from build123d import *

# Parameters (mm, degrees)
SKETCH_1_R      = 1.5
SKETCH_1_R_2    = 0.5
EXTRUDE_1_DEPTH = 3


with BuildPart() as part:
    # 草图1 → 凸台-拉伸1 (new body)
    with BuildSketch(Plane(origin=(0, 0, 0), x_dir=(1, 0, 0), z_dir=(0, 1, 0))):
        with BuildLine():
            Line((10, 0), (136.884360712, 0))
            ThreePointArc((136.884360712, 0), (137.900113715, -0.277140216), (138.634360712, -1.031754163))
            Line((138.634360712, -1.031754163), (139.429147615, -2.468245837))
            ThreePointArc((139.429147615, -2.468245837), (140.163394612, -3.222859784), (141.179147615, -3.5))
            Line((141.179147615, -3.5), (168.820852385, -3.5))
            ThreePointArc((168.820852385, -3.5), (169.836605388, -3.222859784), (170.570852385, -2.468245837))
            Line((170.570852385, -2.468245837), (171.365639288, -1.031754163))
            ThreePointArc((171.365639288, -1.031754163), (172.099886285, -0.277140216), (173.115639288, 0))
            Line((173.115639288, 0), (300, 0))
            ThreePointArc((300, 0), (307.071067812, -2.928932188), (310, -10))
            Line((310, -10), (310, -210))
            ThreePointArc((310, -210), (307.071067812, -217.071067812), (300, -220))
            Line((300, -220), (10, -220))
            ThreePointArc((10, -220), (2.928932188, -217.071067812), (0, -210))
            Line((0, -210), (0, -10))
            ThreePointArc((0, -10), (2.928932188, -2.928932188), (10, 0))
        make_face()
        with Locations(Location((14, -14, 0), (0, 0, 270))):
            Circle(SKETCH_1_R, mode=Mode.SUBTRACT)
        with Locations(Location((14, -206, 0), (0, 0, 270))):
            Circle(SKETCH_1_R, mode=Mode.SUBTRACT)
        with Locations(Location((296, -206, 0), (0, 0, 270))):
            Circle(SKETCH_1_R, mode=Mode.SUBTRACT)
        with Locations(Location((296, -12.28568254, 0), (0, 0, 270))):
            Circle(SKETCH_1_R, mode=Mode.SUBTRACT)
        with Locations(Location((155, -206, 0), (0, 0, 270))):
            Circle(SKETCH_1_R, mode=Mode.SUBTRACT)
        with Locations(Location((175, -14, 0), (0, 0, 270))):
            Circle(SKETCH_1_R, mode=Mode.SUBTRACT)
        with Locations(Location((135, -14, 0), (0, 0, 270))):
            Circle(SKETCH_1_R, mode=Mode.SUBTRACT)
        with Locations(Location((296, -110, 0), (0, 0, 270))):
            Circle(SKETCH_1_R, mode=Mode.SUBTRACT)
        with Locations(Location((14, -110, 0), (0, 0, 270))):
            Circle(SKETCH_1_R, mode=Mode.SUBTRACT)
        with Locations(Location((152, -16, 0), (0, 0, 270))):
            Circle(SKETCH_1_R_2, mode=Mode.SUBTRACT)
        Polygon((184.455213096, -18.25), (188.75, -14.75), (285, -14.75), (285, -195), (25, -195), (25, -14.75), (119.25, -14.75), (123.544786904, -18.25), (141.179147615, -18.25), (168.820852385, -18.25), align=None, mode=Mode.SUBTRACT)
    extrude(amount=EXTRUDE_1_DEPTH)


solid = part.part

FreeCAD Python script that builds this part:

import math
import FreeCAD as App
import Part
import Sketcher
from FreeCAD import Vector
Q = App.Units.Quantity


def add_polygon(sketch, points):
    """Adds a closed chain of lines whose ends are joined by coincident constraints."""
    first, n = sketch.GeometryCount, len(points)
    for a, b in zip(points, points[1:] + points[:1]):
        sketch.addGeometry(Part.LineSegment(App.Vector(*a, 0), App.Vector(*b, 0)), False)
    for i in range(n):
        sketch.addConstraint(Sketcher.Constraint("Coincident", first + i, 2, first + (i + 1) % n, 1))

doc = App.newDocument("Part")
body = doc.addObject("PartDesign::Body", "Body")

# Sketch on XZ plane
sketch1 = body.newObject("Sketcher::SketchObject", "Sketch")
sketch1.AttachmentSupport = (doc.getObject("XZ_Plane"), [""])
sketch1.MapMode = "FlatFace"
sketch1.addGeometry(Part.LineSegment(Vector(136.9, 0, 0), Vector(10, 0, 0)), False)  # 0
sketch1.addGeometry(Part.ArcOfCircle(Part.Circle(Vector(10, 10, 0), Vector(0, 0, 1), 10), math.radians(180), math.radians(270)), False)  # 1
sketch1.addGeometry(Part.LineSegment(Vector(0, 10, 0), Vector(0, 210, 0)), False)  # 2
sketch1.addGeometry(Part.ArcOfCircle(Part.Circle(Vector(10, 210, 0), Vector(0, 0, 1), 10), math.radians(90), math.radians(180)), False)  # 3
sketch1.addGeometry(Part.LineSegment(Vector(10, 220, 0), Vector(300, 220, 0)), False)  # 4
sketch1.addGeometry(Part.ArcOfCircle(Part.Circle(Vector(300, 210, 0), Vector(0, 0, 1), 10), math.radians(0), math.radians(90)), False)  # 5
sketch1.addGeometry(Part.LineSegment(Vector(310, 210, 0), Vector(310, 10, 0)), False)  # 6
sketch1.addGeometry(Part.ArcOfCircle(Part.Circle(Vector(300, 10, 0), Vector(0, 0, 1), 10), math.radians(-90), math.radians(0)), False)  # 7
sketch1.addGeometry(Part.LineSegment(Vector(300, 0, 0), Vector(173.1, 0, 0)), False)  # 8
sketch1.addGeometry(Part.ArcOfCircle(Part.Circle(Vector(173.1, 2, 0), Vector(0, 0, 1), 2), math.radians(-151), math.radians(-90)), False)  # 9
sketch1.addGeometry(Part.LineSegment(Vector(171.4, 1, 0), Vector(170.6, 2.5, 0)), False)  # 10
sketch1.addGeometry(Part.ArcOfCircle(Part.Circle(Vector(168.8, 1.5, 0), Vector(0, 0, 1), 2), math.radians(29), math.radians(90)), False)  # 11
sketch1.addGeometry(Part.LineSegment(Vector(168.8, 3.5, 0), Vector(141.2, 3.5, 0)), False)  # 12
sketch1.addGeometry(Part.ArcOfCircle(Part.Circle(Vector(141.2, 1.5, 0), Vector(0, 0, 1), 2), math.radians(90), math.radians(151)), False)  # 13
sketch1.addGeometry(Part.LineSegment(Vector(139.4, 2.5, 0), Vector(138.6, 1, 0)), False)  # 14
sketch1.addGeometry(Part.ArcOfCircle(Part.Circle(Vector(136.9, 2, 0), Vector(0, 0, 1), 2), math.radians(-90), math.radians(-29)), False)  # 15
sketch1.addGeometry(Part.Circle(Vector(296, 206, 0), Vector(0, 0, 1), 1.5), False)  # 16
sketch1.addGeometry(Part.Circle(Vector(296, 110, 0), Vector(0, 0, 1), 1.5), False)  # 17
sketch1.addGeometry(Part.Circle(Vector(155, 206, 0), Vector(0, 0, 1), 1.5), False)  # 18
sketch1.addGeometry(Part.Circle(Vector(14, 206, 0), Vector(0, 0, 1), 1.5), False)  # 19
sketch1.addGeometry(Part.Circle(Vector(14, 110, 0), Vector(0, 0, 1), 1.5), False)  # 20
sketch1.addGeometry(Part.Circle(Vector(296, 12.3, 0), Vector(0, 0, 1), 1.5), False)  # 21
sketch1.addGeometry(Part.Circle(Vector(175, 14, 0), Vector(0, 0, 1), 1.5), False)  # 22
add_polygon(sketch1, [(184.5, 18.2), (188.8, 14.8), (285, 14.8), (285, 195), (25, 195), (25, 14.8), (119.2, 14.8), (123.5, 18.2)])  # lines 23-30
sketch1.addGeometry(Part.Circle(Vector(152, 16, 0), Vector(0, 0, 1), 0.5), False)  # 31
sketch1.addGeometry(Part.Circle(Vector(135, 14, 0), Vector(0, 0, 1), 1.5), False)  # 32
sketch1.addGeometry(Part.Circle(Vector(14, 14, 0), Vector(0, 0, 1), 1.5), False)  # 33
sketch1.addConstraint(Sketcher.Constraint("Tangent", 0, 2, 1, 2))
sketch1.addConstraint(Sketcher.Constraint("Tangent", 1, 1, 2, 1))
sketch1.addConstraint(Sketcher.Constraint("Tangent", 2, 2, 3, 2))
sketch1.addConstraint(Sketcher.Constraint("Tangent", 3, 1, 4, 1))
sketch1.addConstraint(Sketcher.Constraint("Tangent", 4, 2, 5, 2))
sketch1.addConstraint(Sketcher.Constraint("Tangent", 5, 1, 6, 1))
sketch1.addConstraint(Sketcher.Constraint("Tangent", 6, 2, 7, 2))
sketch1.addConstraint(Sketcher.Constraint("Tangent", 7, 1, 8, 1))
sketch1.addConstraint(Sketcher.Constraint("Tangent", 8, 2, 9, 2))
sketch1.addConstraint(Sketcher.Constraint("Tangent", 9, 1, 10, 1))
sketch1.addConstraint(Sketcher.Constraint("Tangent", 10, 2, 11, 1))
sketch1.addConstraint(Sketcher.Constraint("Tangent", 11, 2, 12, 1))
sketch1.addConstraint(Sketcher.Constraint("Tangent", 12, 2, 13, 1))
sketch1.addConstraint(Sketcher.Constraint("Tangent", 13, 2, 14, 1))
sketch1.addConstraint(Sketcher.Constraint("Tangent", 14, 2, 15, 2))
sketch1.addConstraint(Sketcher.Constraint("Tangent", 15, 1, 0, 1))
sketch1.addConstraint(Sketcher.Constraint("Horizontal", 0))
sketch1.addConstraint(Sketcher.Constraint("Vertical", 2))
sketch1.addConstraint(Sketcher.Constraint("Horizontal", 4))
sketch1.addConstraint(Sketcher.Constraint("Vertical", 6))
sketch1.addConstraint(Sketcher.Constraint("Horizontal", 8))
sketch1.addConstraint(Sketcher.Constraint("Horizontal", 12))
sketch1.addConstraint(Sketcher.Constraint("Horizontal", 24))
sketch1.addConstraint(Sketcher.Constraint("Vertical", 25))
sketch1.addConstraint(Sketcher.Constraint("Horizontal", 26))
sketch1.addConstraint(Sketcher.Constraint("Vertical", 27))
sketch1.addConstraint(Sketcher.Constraint("Horizontal", 28))
sketch1.addConstraint(Sketcher.Constraint("Horizontal", 30))
sketch1.addConstraint(Sketcher.Constraint("Equal", 1, 3))
sketch1.addConstraint(Sketcher.Constraint("Equal", 3, 5))
sketch1.addConstraint(Sketcher.Constraint("Equal", 5, 7))
sketch1.addConstraint(Sketcher.Constraint("Equal", 9, 11))
sketch1.addConstraint(Sketcher.Constraint("Equal", 11, 13))
sketch1.addConstraint(Sketcher.Constraint("Equal", 13, 15))
sketch1.addConstraint(Sketcher.Constraint("Equal", 16, 17))
sketch1.addConstraint(Sketcher.Constraint("Equal", 17, 18))
sketch1.addConstraint(Sketcher.Constraint("Equal", 18, 19))
sketch1.addConstraint(Sketcher.Constraint("Equal", 19, 20))
sketch1.addConstraint(Sketcher.Constraint("Equal", 20, 21))
sketch1.addConstraint(Sketcher.Constraint("Equal", 21, 22))
sketch1.addConstraint(Sketcher.Constraint("Equal", 22, 32))
sketch1.addConstraint(Sketcher.Constraint("Equal", 32, 33))
sketch1.addConstraint(Sketcher.Constraint("PointOnObject", 0, 2, -1))
sketch1.addConstraint(Sketcher.Constraint("PointOnObject", 1, 1, -2))
sketch1.addConstraint(Sketcher.Constraint("PointOnObject", 7, 1, -1))
sketch1.addConstraint(Sketcher.Constraint("Horizontal", 16, 3, 18, 3))
sketch1.addConstraint(Sketcher.Constraint("Horizontal", 18, 3, 19, 3))
sketch1.addConstraint(Sketcher.Constraint("Horizontal", 17, 3, 20, 3))
sketch1.addConstraint(Sketcher.Constraint("Horizontal", 22, 3, 32, 3))
sketch1.addConstraint(Sketcher.Constraint("Horizontal", 32, 3, 33, 3))
sketch1.addConstraint(Sketcher.Constraint("Horizontal", 10, 2, 13, 2))
sketch1.addConstraint(Sketcher.Constraint("Horizontal", 24, 2, 27, 2))
sketch1.addConstraint(Sketcher.Constraint("Vertical", 16, 3, 17, 3))
sketch1.addConstraint(Sketcher.Constraint("Vertical", 19, 3, 20, 3))
sketch1.addConstraint(Sketcher.Constraint("Vertical", 17, 3, 21, 3))
sketch1.addConstraint(Sketcher.Constraint("Vertical", 20, 3, 33, 3))
sketch1.addConstraint(Sketcher.Constraint("Equal", 0, 8))
sketch1.addConstraint(Sketcher.Constraint("Equal", 23, 29))
sketch1.addConstraint(Sketcher.Constraint("Diameter", 16, Q("3 mm")))
sketch1.addConstraint(Sketcher.Constraint("Diameter", 31, Q("1 mm")))
sketch1.addConstraint(Sketcher.Constraint("Radius", 1, Q("10 mm")))
sketch1.addConstraint(Sketcher.Constraint("Radius", 9, Q("2 mm")))
sketch1.addConstraint(Sketcher.Constraint("DistanceX", 4, 1, 4, 2, Q("290 mm")))
sketch1.addConstraint(Sketcher.Constraint("DistanceX", 26, 2, 26, 1, Q("260 mm")))
sketch1.addConstraint(Sketcher.Constraint("DistanceY", 2, 1, 2, 2, Q("200 mm")))
sketch1.addConstraint(Sketcher.Constraint("DistanceX", -1, 1, 16, 3, Q("296 mm")))
sketch1.addConstraint(Sketcher.Constraint("DistanceY", -1, 1, 16, 3, Q("206 mm")))
sketch1.addConstraint(Sketcher.Constraint("DistanceY", -1, 1, 17, 3, Q("110 mm")))
sketch1.addConstraint(Sketcher.Constraint("DistanceX", -1, 1, 18, 3, Q("155 mm")))
sketch1.addConstraint(Sketcher.Constraint("DistanceX", -1, 1, 19, 3, Q("14 mm")))
sketch1.addConstraint(Sketcher.Constraint("DistanceX", -1, 1, 22, 3, Q("175 mm")))
sketch1.addConstraint(Sketcher.Constraint("DistanceY", -1, 1, 22, 3, Q("14 mm")))
sketch1.addConstraint(Sketcher.Constraint("DistanceX", -1, 1, 31, 3, Q("152 mm")))
sketch1.addConstraint(Sketcher.Constraint("DistanceY", -1, 1, 31, 3, Q("16 mm")))
sketch1.addConstraint(Sketcher.Constraint("DistanceX", -1, 1, 32, 3, Q("135 mm")))
sketch1.addConstraint(Sketcher.Constraint("DistanceX", -1, 1, 24, 2, Q("285 mm")))
sketch1.addConstraint(Sketcher.Constraint("DistanceY", -1, 1, 25, 2, Q("195 mm")))
sketch1.addConstraint(Sketcher.Constraint("DistanceX", 24, 1, 24, 2, Q("96.25 mm")))
sketch1.addConstraint(Sketcher.Constraint("DistanceX", 28, 1, 28, 2, Q("94.25 mm")))
sketch1.addConstraint(Sketcher.Constraint("DistanceY", 25, 1, 25, 2, Q("180.25 mm")))
sketch1.addConstraint(Sketcher.Constraint("DistanceY", -1, 1, 11, 3, Q("1.5 mm")))
sketch1.addConstraint(Sketcher.Constraint("DistanceY", 28, 2, 29, 2, Q("3.5 mm")))
sketch1.addConstraint(Sketcher.Constraint("DistanceX", 9, 1, 9, 3, Q("1.75 mm")))
sketch1.addConstraint(Sketcher.Constraint("DistanceX", 0, 2, 0, 1, Q("126.884361 mm")))
sketch1.addConstraint(Sketcher.Constraint("DistanceX", 30, 1, 30, 2, Q("60.910426 mm")))
sketch1.addConstraint(Sketcher.Constraint("DistanceY", -1, 1, 21, 3, Q("12.285683 mm")))
pad1 = body.newObject("PartDesign::Pad", "Pad")
pad1.Profile = sketch1
pad1.Length = 3
pad1.Reversed = True

doc.recompute()
